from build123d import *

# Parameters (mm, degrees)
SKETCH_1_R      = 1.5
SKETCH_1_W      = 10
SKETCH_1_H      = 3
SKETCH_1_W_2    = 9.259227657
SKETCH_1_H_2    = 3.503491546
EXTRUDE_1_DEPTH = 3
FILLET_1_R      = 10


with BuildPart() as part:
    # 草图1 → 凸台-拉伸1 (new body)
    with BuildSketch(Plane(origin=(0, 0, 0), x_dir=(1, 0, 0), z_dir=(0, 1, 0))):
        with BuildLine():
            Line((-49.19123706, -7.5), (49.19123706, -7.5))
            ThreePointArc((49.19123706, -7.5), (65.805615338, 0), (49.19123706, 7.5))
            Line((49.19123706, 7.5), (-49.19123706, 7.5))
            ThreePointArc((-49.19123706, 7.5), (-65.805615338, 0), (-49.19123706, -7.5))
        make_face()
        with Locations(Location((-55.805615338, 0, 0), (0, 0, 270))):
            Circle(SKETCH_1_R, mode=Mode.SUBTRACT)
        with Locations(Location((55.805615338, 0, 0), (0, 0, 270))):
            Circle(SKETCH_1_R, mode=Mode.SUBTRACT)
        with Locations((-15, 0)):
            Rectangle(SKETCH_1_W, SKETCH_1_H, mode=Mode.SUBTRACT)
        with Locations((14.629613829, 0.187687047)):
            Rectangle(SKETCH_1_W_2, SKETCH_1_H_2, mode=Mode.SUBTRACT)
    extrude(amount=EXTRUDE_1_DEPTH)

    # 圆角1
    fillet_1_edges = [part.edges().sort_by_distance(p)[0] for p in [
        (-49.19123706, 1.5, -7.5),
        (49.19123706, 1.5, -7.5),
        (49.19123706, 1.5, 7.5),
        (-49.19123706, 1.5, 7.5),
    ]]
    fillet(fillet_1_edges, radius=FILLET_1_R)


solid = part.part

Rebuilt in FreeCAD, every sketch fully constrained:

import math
import FreeCAD as App
import Part
import Sketcher
from FreeCAD import Vector


def edges_at(feature, points):
    """Names of the edges that pass closest to the given points."""
    edges = feature.Shape.Edges
    near = lambda p: min(range(len(edges)), key=lambda i: edges[i].distToShape(Part.Vertex(*p))[0])
    return sorted({f"Edge{near(p) + 1}" for p in points})


def add_polygon(sketch, points):
    """Adds a closed chain of lines whose ends are joined by coincident constraints."""
    first, n = sketch.GeometryCount, len(points)
    for a, b in zip(points, points[1:] + points[:1]):
        sketch.addGeometry(Part.LineSegment(App.Vector(*a, 0), App.Vector(*b, 0)), False)
    for i in range(n):
        sketch.addConstraint(Sketcher.Constraint("Coincident", first + i, 2, first + (i + 1) % n, 1))

doc = App.newDocument("Part")
params = doc.addObject("Spreadsheet::Sheet", "Params")
for row, (alias, value) in enumerate([
    ("sketch1_diameter", "3 mm"),
    ("sketch1_radius", "10 mm"),
    ("sketch1_width", "10 mm"),
    ("sketch1_height", "3 mm"),
    ("pad1_length", "3 mm"),
    ("fillet_radius", "10 mm"),
], start=1):
    params.set(f"A{row}", alias)
    params.set(f"B{row}", "=" + value)
    params.setAlias(f"B{row}", alias)

body = doc.addObject("PartDesign::Body", "Body")

sketch1 = doc.addObject("Sketcher::SketchObject", "Sketch")
body.addObject(sketch1)
sketch1.AttachmentSupport = (doc.XZ_Plane, [""])
sketch1.MapMode = "FlatFace"
sketch1.addGeometry(Part.LineSegment(Vector(-49.191237, 7.5, 0), Vector(49.191237, 7.5, 0)), False)
sketch1.addGeometry(Part.ArcOfCircle(Part.Circle(Vector(55.805615, 0, 0), Vector(0, 0, 1), 10), math.radians(-131.409622), math.radians(131.409622)), False)
sketch1.addGeometry(Part.LineSegment(Vector(49.191237, -7.5, 0), Vector(-49.191237, -7.5, 0)), False)
sketch1.addGeometry(Part.ArcOfCircle(Part.Circle(Vector(-55.805615, 0, 0), Vector(0, 0, 1), 10), math.radians(48.590378), math.radians(311.409622)), False)
sketch1.addGeometry(Part.Circle(Vector(-55.805615, 0, 0), Vector(0, 0, 1), 1.5), False)
add_polygon(sketch1, [(-10, 1.5), (-20, 1.5), (-20, -1.5), (-10, -1.5)])
add_polygon(sketch1, [(19.259228, 1.564059), (10, 1.564059), (10, -1.939433), (19.259228, -1.939433)])
sketch1.addGeometry(Part.Circle(Vector(55.805615, 0, 0), Vector(0, 0, 1), 1.5), False)
sketch1.addConstraint([
    Sketcher.Constraint("Coincident", 0, 2, 1, 2),
    Sketcher.Constraint("Coincident", 1, 1, 2, 1),
    Sketcher.Constraint("Coincident", 2, 2, 3, 2),
    Sketcher.Constraint("Coincident", 3, 1, 0, 1),
    Sketcher.Constraint("Horizontal", 0),
    Sketcher.Constraint("Horizontal", 2),
    Sketcher.Constraint("Horizontal", 5),
    Sketcher.Constraint("Vertical", 6),
    Sketcher.Constraint("Horizontal", 7),
    Sketcher.Constraint("Vertical", 8),
    Sketcher.Constraint("Horizontal", 9),
    Sketcher.Constraint("Vertical", 10),
    Sketcher.Constraint("Horizontal", 11),
    Sketcher.Constraint("Vertical", 12),
    Sketcher.Constraint("Coincident", 4, 3, 3, 3),
    Sketcher.Constraint("Coincident", 13, 3, 1, 3),
    Sketcher.Constraint("Equal", 1, 3),
    Sketcher.Constraint("Equal", 4, 13),
    Sketcher.Constraint("Symmetric", 1, 3, 3, 3, -1, 1),
    Sketcher.Constraint("Symmetric", 0, 2, 1, 1, -1),
    Sketcher.Constraint("Diameter", 4, 3.0),
    Sketcher.Constraint("Radius", 1, 10.0),
    Sketcher.Constraint("DistanceX", 5, 2, 5, 1, 10.0),
    Sketcher.Constraint("DistanceY", 6, 2, 6, 1, 3.0),
    Sketcher.Constraint("DistanceX", 5, 2, -1, 1, 20.0),
    Sketcher.Constraint("DistanceX", -1, 1, 9, 2, 10.0),
    Sketcher.Constraint("DistanceY", 1, 1, 0, 2, 15.0),
    Sketcher.Constraint("DistanceY", 5, 2, 3, 1, 6.0),
    Sketcher.Constraint("DistanceY", 10, 2, 10, 1, 3.503492),
    Sketcher.Constraint("DistanceX", 0, 1, 0, 2, 98.382474),
    Sketcher.Constraint("DistanceX", 9, 2, 9, 1, 9.259228),
    Sketcher.Constraint("DistanceY", -1, 1, 9, 2, 1.564059),
])
sketch1.setExpression("Constraints[28]", "Params.sketch1_diameter")
sketch1.setExpression("Constraints[29]", "Params.sketch1_radius")
sketch1.setExpression("Constraints[30]", "Params.sketch1_width")
sketch1.setExpression("Constraints[31]", "Params.sketch1_height")
pad1 = doc.addObject("PartDesign::Pad", "Pad")
body.addObject(pad1)
pad1.Profile = sketch1
pad1.setExpression("Length", "Params.pad1_length")
pad1.Reversed = True
doc.recompute()

fillet = doc.addObject("PartDesign::Fillet", "Fillet")
body.addObject(fillet)
fillet.Base = (pad1, edges_at(pad1, [
    (-49.191, 1.5, -7.5),
    (49.191, 1.5, -7.5),
    (49.191, 1.5, 7.5),
    (-49.191, 1.5, 7.5),
]))
fillet.setExpression("Radius", "Params.fillet_radius")

doc.recompute()
